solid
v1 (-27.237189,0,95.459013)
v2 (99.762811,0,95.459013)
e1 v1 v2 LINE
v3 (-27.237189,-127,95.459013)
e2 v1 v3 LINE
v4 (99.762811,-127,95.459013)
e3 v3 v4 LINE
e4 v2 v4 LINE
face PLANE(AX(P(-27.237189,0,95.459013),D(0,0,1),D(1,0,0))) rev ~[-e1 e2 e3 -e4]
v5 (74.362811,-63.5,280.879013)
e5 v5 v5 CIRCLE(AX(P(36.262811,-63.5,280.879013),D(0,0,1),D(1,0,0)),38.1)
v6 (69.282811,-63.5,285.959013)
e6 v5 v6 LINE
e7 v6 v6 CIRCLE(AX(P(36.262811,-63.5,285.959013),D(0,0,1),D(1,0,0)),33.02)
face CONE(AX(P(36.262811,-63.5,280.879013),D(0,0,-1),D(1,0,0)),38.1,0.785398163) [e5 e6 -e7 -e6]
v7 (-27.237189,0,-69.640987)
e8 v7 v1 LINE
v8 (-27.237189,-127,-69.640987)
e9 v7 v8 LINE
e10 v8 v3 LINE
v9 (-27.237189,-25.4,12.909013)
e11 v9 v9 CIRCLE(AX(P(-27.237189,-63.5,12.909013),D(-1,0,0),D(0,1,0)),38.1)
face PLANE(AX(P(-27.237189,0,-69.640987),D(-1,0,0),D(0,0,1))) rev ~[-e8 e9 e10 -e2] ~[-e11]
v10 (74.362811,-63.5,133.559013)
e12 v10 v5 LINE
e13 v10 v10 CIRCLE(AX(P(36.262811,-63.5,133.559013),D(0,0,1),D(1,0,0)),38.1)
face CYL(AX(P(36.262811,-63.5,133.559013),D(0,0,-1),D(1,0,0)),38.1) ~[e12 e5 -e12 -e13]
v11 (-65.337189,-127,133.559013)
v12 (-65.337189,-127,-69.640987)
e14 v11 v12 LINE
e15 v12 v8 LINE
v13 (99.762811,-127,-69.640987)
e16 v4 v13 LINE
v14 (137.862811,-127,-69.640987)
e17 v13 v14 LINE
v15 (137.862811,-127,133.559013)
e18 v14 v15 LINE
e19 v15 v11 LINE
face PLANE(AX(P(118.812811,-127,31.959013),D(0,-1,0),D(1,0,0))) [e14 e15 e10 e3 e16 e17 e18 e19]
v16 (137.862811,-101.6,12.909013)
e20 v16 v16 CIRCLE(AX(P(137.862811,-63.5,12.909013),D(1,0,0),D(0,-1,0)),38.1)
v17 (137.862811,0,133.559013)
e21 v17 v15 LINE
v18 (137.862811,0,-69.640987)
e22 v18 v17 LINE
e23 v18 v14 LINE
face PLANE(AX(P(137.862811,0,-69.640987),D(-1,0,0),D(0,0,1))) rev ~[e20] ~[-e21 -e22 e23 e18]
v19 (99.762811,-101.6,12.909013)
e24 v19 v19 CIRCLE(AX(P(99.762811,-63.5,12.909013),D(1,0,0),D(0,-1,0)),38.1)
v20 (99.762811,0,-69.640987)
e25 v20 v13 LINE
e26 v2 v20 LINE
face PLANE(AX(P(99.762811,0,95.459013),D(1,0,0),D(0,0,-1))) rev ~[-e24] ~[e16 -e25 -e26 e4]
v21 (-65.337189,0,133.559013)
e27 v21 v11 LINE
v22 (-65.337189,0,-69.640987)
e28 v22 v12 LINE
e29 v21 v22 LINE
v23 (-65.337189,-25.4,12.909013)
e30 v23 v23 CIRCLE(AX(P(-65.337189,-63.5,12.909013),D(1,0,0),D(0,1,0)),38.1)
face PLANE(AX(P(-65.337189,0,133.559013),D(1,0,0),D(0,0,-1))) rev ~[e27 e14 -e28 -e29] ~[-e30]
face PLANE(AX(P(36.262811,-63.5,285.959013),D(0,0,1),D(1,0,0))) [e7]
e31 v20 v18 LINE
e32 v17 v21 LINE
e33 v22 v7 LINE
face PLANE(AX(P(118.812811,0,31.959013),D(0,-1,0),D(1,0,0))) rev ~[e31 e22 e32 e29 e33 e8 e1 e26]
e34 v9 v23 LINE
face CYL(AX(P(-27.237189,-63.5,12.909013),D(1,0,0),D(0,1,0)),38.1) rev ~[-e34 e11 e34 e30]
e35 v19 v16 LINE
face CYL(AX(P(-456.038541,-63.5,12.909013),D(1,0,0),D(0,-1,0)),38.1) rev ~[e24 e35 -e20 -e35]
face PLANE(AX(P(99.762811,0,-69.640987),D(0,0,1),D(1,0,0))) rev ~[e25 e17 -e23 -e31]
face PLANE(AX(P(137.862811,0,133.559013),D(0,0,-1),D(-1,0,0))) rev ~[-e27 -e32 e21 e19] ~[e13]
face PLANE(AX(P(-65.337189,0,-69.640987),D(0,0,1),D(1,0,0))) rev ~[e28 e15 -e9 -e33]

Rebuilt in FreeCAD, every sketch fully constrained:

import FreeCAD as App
import Part
import Sketcher

V = App.Vector
Q = App.Units.Quantity


def edges_at(feature, points):
    """Names of the edges that pass closest to the given points."""
    edges = feature.Shape.Edges
    near = lambda p: min(range(len(edges)), key=lambda i: edges[i].distToShape(Part.Vertex(*p))[0])
    return sorted({f"Edge{near(p) + 1}" for p in points})

doc = App.newDocument("Part")
body = doc.addObject("PartDesign::Body", "Body")

sketch1 = body.newObject("Sketcher::SketchObject", "Sketch")
sketch1.AttachmentSupport = (doc.getObject("XZ_Plane"), [""])
sketch1.MapMode = "FlatFace"
sketch1.addGeometry([
    Part.LineSegment(V(137.862811, 133.559013, 0), V(-65.337189, 133.559013, 0)),
    Part.LineSegment(V(-65.337189, 133.559013, 0), V(-65.337189, -69.640987, 0)),
    Part.LineSegment(V(-65.337189, -69.640987, 0), V(-27.237189, -69.640987, 0)),
    Part.LineSegment(V(-27.237189, -69.640987, 0), V(-27.237189, 95.459013, 0)),
    Part.LineSegment(V(-27.237189, 95.459013, 0), V(99.762811, 95.459013, 0)),
    Part.LineSegment(V(99.762811, 95.459013, 0), V(99.762811, -69.640987, 0)),
    Part.LineSegment(V(99.762811, -69.640987, 0), V(137.862811, -69.640987, 0)),
    Part.LineSegment(V(137.862811, -69.640987, 0), V(137.862811, 133.559013, 0)),
], False)
sketch1.addConstraint([
    Sketcher.Constraint("Coincident", 0, 2, 1, 1),
    Sketcher.Constraint("Coincident", 1, 2, 2, 1),
    Sketcher.Constraint("Coincident", 2, 2, 3, 1),
    Sketcher.Constraint("Coincident", 3, 2, 4, 1),
    Sketcher.Constraint("Coincident", 4, 2, 5, 1),
    Sketcher.Constraint("Coincident", 5, 2, 6, 1),
    Sketcher.Constraint("Coincident", 6, 2, 7, 1),
    Sketcher.Constraint("Coincident", 7, 2, 0, 1),
    Sketcher.Constraint("Horizontal", 0),
    Sketcher.Constraint("Vertical", 1),
    Sketcher.Constraint("Horizontal", 2),
    Sketcher.Constraint("Vertical", 3),
    Sketcher.Constraint("Horizontal", 4),
    Sketcher.Constraint("Vertical", 5),
    Sketcher.Constraint("Horizontal", 6),
    Sketcher.Constraint("Vertical", 7),
    Sketcher.Constraint("Horizontal", 2, 2, 5, 2),
    Sketcher.Constraint("Equal", 2, 6),
    Sketcher.Constraint("Equal", 0, 1),
    Sketcher.Constraint("DistanceX", 0, 2, 0, 1, Q("8 in")),
    Sketcher.Constraint("DistanceX", 4, 1, 4, 2, Q("5 in")),
    Sketcher.Constraint("DistanceY", 3, 1, 3, 2, Q("6.5 in")),
    Sketcher.Constraint("DistanceX", 0, 2, -1, 1, 65.337189),
    Sketcher.Constraint("DistanceY", -1, 1, 0, 2, 133.559013),
])
pad1 = body.newObject("PartDesign::Pad", "Pad")
pad1.Profile = sketch1
pad1.Length = Q("5 in")

sketch2 = body.newObject("Sketcher::SketchObject", "Sketch001")
sketch2.AttachmentSupport = (doc.getObject("XY_Plane"), [""])
sketch2.MapMode = "FlatFace"
sketch2.AttachmentOffset = App.Placement(V(0, 0, 133.559013), App.Rotation())
sketch2.addGeometry(Part.Circle(V(36.262811, -63.5, 0), V(0, 0, 1), 38.1), False)
sketch2.addConstraint([
    Sketcher.Constraint("Diameter", 0, Q("3 in")),
    Sketcher.Constraint("DistanceY", 0, 3, -1, 1, Q("2.5 in")),
    Sketcher.Constraint("DistanceX", -1, 1, 0, 3, 36.262811),
])
pad2 = body.newObject("PartDesign::Pad", "Pad001")
pad2.Profile = sketch2
pad2.Length = Q("6 in")
doc.recompute()

chamfer = body.newObject("PartDesign::Chamfer", "Chamfer")
chamfer.Base = (pad2, edges_at(pad2, [(-1.837, -63.5, 285.959)]))
chamfer.Size = Q("0.2 in")

sketch3 = body.newObject("Sketcher::SketchObject", "Sketch002")
sketch3.AttachmentSupport = (doc.getObject("YZ_Plane"), [""])
sketch3.MapMode = "FlatFace"
sketch3.AttachmentOffset = App.Placement(V(0, 0, -27.237189), App.Rotation())
sketch3.addGeometry(Part.Circle(V(-63.5, 12.909013, 0), V(0, 0, 1), 38.1), False)
sketch3.addConstraint([
    Sketcher.Constraint("Diameter", 0, Q("3 in")),
    Sketcher.Constraint("DistanceX", 0, 3, -1, 1, Q("2.5 in")),
    Sketcher.Constraint("DistanceY", -1, 1, 0, 3, 12.909013),
])
pocket1 = body.newObject("PartDesign::Pocket", "Pocket")
pocket1.Profile = sketch3
pocket1.Type = "ThroughAll"

sketch4 = body.newObject("Sketcher::SketchObject", "Sketch003")
sketch4.AttachmentSupport = (doc.getObject("YZ_Plane"), [""])
sketch4.MapMode = "FlatFace"
sketch4.AttachmentOffset = App.Placement(V(0, 0, -27.237189), App.Rotation())
sketch4.addGeometry(Part.Circle(V(-63.5, 12.909013, 0), V(0, 0, 1), 38.1), False)
sketch4.addConstraint([
    Sketcher.Constraint("Diameter", 0, Q("3 in")),
    Sketcher.Constraint("DistanceX", 0, 3, -1, 1, Q("2.5 in")),
    Sketcher.Constraint("DistanceY", -1, 1, 0, 3, 12.909013),
])
doc.recompute()
hole = body.newObject("PartDesign::Hole", "Hole")
hole.Profile = sketch4
hole.ThreadType = "None"
hole.Diameter = Q("3 in")
hole.DepthType = "ThroughAll"
hole.Reversed = True

doc.recompute()
